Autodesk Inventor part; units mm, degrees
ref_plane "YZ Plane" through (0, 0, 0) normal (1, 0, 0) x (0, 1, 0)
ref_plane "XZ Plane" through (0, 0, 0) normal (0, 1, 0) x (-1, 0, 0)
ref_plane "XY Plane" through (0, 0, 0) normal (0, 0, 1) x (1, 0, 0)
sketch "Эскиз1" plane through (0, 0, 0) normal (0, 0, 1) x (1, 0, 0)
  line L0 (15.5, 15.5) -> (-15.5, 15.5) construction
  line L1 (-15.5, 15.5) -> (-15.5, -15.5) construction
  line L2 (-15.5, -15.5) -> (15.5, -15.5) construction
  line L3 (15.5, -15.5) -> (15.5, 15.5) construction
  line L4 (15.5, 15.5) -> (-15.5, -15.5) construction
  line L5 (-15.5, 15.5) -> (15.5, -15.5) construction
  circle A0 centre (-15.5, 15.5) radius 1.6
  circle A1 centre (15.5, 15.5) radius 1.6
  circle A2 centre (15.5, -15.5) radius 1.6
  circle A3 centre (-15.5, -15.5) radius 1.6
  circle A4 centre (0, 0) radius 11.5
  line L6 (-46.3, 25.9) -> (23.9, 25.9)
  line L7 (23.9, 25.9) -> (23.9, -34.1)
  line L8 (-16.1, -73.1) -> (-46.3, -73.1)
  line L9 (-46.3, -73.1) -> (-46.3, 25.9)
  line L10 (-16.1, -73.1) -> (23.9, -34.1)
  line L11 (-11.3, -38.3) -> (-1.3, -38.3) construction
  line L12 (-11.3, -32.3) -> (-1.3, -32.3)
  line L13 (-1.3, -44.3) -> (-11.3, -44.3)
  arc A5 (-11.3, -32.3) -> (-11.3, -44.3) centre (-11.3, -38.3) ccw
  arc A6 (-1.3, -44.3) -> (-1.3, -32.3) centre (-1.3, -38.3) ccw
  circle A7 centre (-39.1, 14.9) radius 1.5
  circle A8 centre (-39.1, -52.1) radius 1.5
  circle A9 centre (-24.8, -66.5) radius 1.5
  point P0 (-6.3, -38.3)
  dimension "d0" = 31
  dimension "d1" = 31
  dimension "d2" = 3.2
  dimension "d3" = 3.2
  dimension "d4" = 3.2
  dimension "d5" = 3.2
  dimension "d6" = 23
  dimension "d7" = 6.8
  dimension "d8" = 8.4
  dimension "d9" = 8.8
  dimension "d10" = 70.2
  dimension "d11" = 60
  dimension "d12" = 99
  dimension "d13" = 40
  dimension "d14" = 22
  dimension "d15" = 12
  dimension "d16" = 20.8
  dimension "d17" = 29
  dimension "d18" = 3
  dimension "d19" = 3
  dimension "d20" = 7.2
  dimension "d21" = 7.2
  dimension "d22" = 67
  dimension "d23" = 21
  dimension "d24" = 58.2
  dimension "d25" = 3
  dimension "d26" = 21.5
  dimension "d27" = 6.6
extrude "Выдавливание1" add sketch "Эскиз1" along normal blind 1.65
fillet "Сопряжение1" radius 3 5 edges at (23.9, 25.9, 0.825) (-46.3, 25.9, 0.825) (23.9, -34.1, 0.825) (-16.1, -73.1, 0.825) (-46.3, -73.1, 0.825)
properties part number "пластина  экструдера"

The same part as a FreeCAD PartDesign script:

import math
import FreeCAD as App
import Part
import Sketcher


def edges_at(feature, points):
    """Names of the edges that pass closest to the given points."""
    edges = feature.Shape.Edges
    near = lambda p: min(range(len(edges)), key=lambda i: edges[i].distToShape(Part.Vertex(*p))[0])
    return sorted({f"Edge{near(p) + 1}" for p in points})


def add_polygon(sketch, points):
    """Adds a closed chain of lines whose ends are joined by coincident constraints."""
    first, n = sketch.GeometryCount, len(points)
    for a, b in zip(points, points[1:] + points[:1]):
        sketch.addGeometry(Part.LineSegment(App.Vector(*a, 0), App.Vector(*b, 0)), False)
    for i in range(n):
        sketch.addConstraint(Sketcher.Constraint("Coincident", first + i, 2, first + (i + 1) % n, 1))

doc = App.newDocument("Part")
body = doc.addObject("PartDesign::Body", "Body")

sketch1 = doc.addObject("Sketcher::SketchObject", "Sketch")
body.addObject(sketch1)
sketch1.AttachmentSupport = (doc.XY_Plane, [""])
sketch1.MapMode = "FlatFace"
add_polygon(sketch1, [(23.9, 25.9), (-46.3, 25.9), (-46.3, -73.1), (-16.1, -73.1), (23.9, -34.1)])
sketch1.addGeometry(Part.Circle(App.Vector(-39.1, -52.1, 0), App.Vector(0, 0, 1), 1.5), False)
sketch1.addGeometry(Part.Circle(App.Vector(-24.8, -66.5, 0), App.Vector(0, 0, 1), 1.5), False)
sketch1.addGeometry(Part.ArcOfCircle(Part.Circle(App.Vector(-11.3, -38.3, 0), App.Vector(0, 0, 1), 6), math.radians(90), math.radians(270)), False)
sketch1.addGeometry(Part.LineSegment(App.Vector(-11.3, -32.3, 0), App.Vector(-1.3, -32.3, 0)), False)
sketch1.addGeometry(Part.ArcOfCircle(Part.Circle(App.Vector(-1.3, -38.3, 0), App.Vector(0, 0, 1), 6), math.radians(-90), math.radians(90)), False)
sketch1.addGeometry(Part.LineSegment(App.Vector(-1.3, -44.3, 0), App.Vector(-11.3, -44.3, 0)), False)
sketch1.addGeometry(Part.Circle(App.Vector(-15.5, -15.5, 0), App.Vector(0, 0, 1), 1.6), False)
sketch1.addGeometry(Part.Circle(App.Vector(-39.1, 14.9, 0), App.Vector(0, 0, 1), 1.5), False)
sketch1.addGeometry(Part.Circle(App.Vector(-15.5, 15.5, 0), App.Vector(0, 0, 1), 1.6), False)
sketch1.addGeometry(Part.Circle(App.Vector(0, 0, 0), App.Vector(0, 0, 1), 11.5), False)
sketch1.addGeometry(Part.Circle(App.Vector(15.5, -15.5, 0), App.Vector(0, 0, 1), 1.6), False)
sketch1.addGeometry(Part.Circle(App.Vector(15.5, 15.5, 0), App.Vector(0, 0, 1), 1.6), False)
sketch1.addConstraint([
    Sketcher.Constraint("Tangent", 7, 1, 8, 1),
    Sketcher.Constraint("Tangent", 8, 2, 9, 2),
    Sketcher.Constraint("Tangent", 9, 1, 10, 1),
    Sketcher.Constraint("Tangent", 10, 2, 7, 2),
    Sketcher.Constraint("Horizontal", 0),
    Sketcher.Constraint("Vertical", 1),
    Sketcher.Constraint("Horizontal", 2),
    Sketcher.Constraint("Vertical", 4),
    Sketcher.Constraint("Horizontal", 8),
    Sketcher.Constraint("Horizontal", 10),
    Sketcher.Constraint("Coincident", 14, 3, -1, 1),
    Sketcher.Constraint("Equal", 5, 6),
    Sketcher.Constraint("Equal", 6, 12),
    Sketcher.Constraint("Equal", 11, 13),
    Sketcher.Constraint("Equal", 13, 15),
    Sketcher.Constraint("Equal", 15, 16),
    Sketcher.Constraint("Symmetric", 13, 3, 15, 3, -1, 1),
    Sketcher.Constraint("Symmetric", 11, 3, 16, 3, -1, 1),
    Sketcher.Constraint("Symmetric", 11, 3, 15, 3, -2),
    Sketcher.Constraint("Vertical", 5, 3, 12, 3),
    Sketcher.Constraint("Diameter", 5, 3.0),
    Sketcher.Constraint("Diameter", 14, 23.0),
    Sketcher.Constraint("Radius", 7, 6.0),
    Sketcher.Constraint("Diameter", 11, 3.2),
    Sketcher.Constraint("DistanceY", 1, 2, 1, 1, 99.0),
    Sketcher.Constraint("DistanceY", 4, 1, 4, 2, 60.0),
    Sketcher.Constraint("DistanceX", 0, 2, 0, 1, 70.2),
    Sketcher.Constraint("DistanceY", 5, 3, 12, 3, 67.0),
    Sketcher.Constraint("DistanceY", 11, 3, 13, 3, 31.0),
    Sketcher.Constraint("DistanceX", 11, 3, 15, 3, 31.0),
    Sketcher.Constraint("DistanceY", 1, 2, 5, 3, 21.0),
    Sketcher.Constraint("DistanceX", 5, 3, 2, 2, 23.0),
    Sketcher.Constraint("DistanceX", 0, 2, 12, 3, 7.2),
    Sketcher.Constraint("DistanceX", 1, 2, 6, 3, 21.5),
    Sketcher.Constraint("DistanceY", 1, 2, 6, 3, 6.6),
    Sketcher.Constraint("DistanceX", 15, 3, 3, 2, 8.4),
    Sketcher.Constraint("DistanceX", 8, 1, 8, 2, 10.0),
    Sketcher.Constraint("DistanceY", 6, 3, 11, 3, 51.0),
    Sketcher.Constraint("DistanceX", 1, 2, 7, 3, 35.0),
    Sketcher.Constraint("DistanceY", 7, 3, -1, 1, 38.3),
])
pad1 = doc.addObject("PartDesign::Pad", "Pad")
body.addObject(pad1)
pad1.Profile = sketch1
pad1.Length = 1.65
doc.recompute()

fillet = doc.addObject("PartDesign::Fillet", "Fillet")
body.addObject(fillet)
fillet.Base = (pad1, edges_at(pad1, [
    (23.9, 25.9, 0.825),
    (-46.3, 25.9, 0.825),
    (23.9, -34.1, 0.825),
    (-16.1, -73.1, 0.825),
    (-46.3, -73.1, 0.825),
]))
fillet.Radius = 3

doc.recompute()
